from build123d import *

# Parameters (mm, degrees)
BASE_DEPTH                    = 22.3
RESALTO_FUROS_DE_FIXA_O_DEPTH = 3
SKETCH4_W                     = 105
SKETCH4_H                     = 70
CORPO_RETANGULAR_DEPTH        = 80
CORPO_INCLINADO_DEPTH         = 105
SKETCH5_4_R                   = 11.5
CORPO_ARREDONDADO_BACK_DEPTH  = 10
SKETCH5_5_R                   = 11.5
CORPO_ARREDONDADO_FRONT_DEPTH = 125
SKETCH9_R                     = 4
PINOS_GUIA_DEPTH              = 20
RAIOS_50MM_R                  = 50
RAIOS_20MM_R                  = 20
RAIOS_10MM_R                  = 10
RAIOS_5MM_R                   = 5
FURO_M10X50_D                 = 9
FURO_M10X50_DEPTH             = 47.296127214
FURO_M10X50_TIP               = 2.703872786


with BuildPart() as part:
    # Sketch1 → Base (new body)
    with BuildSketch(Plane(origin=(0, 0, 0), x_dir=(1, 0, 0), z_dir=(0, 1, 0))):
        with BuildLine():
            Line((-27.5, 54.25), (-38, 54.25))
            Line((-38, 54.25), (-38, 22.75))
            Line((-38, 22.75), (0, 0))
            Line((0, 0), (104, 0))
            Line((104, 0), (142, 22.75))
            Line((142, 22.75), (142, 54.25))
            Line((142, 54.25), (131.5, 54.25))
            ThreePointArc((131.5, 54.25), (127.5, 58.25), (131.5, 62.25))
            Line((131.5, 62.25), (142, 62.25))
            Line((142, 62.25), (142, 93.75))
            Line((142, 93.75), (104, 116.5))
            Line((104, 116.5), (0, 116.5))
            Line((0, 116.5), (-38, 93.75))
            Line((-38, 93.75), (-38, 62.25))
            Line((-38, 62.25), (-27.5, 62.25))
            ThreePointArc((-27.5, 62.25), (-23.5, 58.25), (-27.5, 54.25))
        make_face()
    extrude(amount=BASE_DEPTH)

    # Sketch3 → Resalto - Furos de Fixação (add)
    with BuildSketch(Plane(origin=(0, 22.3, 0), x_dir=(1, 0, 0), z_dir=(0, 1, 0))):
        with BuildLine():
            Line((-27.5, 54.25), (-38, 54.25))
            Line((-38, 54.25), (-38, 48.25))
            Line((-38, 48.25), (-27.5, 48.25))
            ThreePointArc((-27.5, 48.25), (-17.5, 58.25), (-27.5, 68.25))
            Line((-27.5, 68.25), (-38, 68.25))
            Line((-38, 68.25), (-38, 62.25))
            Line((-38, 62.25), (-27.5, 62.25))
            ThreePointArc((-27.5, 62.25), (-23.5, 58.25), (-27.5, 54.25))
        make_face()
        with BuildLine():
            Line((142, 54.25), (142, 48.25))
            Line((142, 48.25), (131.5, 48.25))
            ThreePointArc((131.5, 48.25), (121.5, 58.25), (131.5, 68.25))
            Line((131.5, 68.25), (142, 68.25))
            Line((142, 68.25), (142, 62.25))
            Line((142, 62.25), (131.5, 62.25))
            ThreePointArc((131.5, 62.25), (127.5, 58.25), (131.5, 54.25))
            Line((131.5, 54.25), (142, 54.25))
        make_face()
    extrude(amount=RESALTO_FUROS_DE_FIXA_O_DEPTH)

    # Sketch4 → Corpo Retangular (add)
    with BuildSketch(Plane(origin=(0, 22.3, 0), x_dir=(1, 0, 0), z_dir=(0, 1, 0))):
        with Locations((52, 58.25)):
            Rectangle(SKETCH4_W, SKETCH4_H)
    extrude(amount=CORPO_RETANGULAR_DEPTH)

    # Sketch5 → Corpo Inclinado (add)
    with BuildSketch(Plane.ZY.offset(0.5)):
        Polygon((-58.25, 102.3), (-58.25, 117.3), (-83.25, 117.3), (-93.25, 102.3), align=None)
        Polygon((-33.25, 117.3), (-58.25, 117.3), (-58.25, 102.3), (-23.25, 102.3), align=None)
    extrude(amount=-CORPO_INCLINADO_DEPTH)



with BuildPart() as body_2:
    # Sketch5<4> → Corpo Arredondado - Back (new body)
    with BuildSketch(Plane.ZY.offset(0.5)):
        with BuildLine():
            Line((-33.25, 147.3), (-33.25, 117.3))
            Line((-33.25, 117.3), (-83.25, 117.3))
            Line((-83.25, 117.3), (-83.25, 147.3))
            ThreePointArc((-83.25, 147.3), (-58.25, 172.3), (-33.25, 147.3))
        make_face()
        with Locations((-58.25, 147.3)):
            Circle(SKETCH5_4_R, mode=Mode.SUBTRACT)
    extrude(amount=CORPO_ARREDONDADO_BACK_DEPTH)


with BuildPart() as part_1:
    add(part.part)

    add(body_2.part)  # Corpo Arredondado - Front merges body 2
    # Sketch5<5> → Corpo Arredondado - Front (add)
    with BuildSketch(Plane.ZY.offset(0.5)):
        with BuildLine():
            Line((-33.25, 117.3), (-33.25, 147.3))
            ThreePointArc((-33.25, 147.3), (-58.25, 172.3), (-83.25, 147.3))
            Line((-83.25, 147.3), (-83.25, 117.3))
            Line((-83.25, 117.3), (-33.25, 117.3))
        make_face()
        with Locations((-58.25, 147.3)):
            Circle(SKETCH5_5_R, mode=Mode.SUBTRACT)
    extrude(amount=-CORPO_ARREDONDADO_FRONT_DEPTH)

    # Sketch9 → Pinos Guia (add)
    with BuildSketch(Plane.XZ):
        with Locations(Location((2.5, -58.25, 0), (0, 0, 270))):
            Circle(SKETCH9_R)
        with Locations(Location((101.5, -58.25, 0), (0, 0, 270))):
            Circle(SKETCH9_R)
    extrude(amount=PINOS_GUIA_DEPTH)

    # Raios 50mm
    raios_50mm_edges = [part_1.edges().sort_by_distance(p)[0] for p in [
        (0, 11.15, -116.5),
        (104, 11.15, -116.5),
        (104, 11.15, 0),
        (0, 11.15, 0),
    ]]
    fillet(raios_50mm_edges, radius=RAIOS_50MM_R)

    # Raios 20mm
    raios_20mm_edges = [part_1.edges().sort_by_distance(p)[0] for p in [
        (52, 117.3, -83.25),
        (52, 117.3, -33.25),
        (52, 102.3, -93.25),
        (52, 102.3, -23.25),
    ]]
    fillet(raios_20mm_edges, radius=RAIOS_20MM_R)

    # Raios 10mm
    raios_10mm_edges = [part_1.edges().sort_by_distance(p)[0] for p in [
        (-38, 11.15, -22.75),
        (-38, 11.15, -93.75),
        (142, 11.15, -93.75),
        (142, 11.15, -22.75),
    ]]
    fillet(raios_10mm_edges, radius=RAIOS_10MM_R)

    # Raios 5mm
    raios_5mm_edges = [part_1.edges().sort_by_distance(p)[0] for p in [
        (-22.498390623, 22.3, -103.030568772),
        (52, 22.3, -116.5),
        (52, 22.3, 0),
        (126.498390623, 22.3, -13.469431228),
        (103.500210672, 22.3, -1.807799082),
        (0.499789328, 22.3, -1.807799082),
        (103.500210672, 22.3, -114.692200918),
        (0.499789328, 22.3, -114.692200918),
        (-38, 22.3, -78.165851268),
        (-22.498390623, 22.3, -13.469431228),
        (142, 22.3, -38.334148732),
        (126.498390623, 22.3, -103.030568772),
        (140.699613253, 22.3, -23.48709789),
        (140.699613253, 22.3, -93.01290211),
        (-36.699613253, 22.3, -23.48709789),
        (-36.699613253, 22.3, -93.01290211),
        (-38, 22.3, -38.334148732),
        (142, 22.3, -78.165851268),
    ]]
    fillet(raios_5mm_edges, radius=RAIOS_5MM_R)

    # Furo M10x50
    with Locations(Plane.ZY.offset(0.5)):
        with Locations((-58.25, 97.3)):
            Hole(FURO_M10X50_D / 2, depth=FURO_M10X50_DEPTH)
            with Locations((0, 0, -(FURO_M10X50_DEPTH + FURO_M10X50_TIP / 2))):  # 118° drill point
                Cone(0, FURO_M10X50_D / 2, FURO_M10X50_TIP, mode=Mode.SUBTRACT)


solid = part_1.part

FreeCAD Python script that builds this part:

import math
import FreeCAD as App
import Part
import Sketcher

V = App.Vector


def edges_at(feature, points):
    """Names of the edges that pass closest to the given points."""
    edges = feature.Shape.Edges
    near = lambda p: min(range(len(edges)), key=lambda i: edges[i].distToShape(Part.Vertex(*p))[0])
    return sorted({f"Edge{near(p) + 1}" for p in points})

doc = App.newDocument("Part")
body = doc.addObject("PartDesign::Body", "Body")

sketch1 = doc.addObject("Sketcher::SketchObject", "Sketch")
body.addObject(sketch1)
sketch1.AttachmentSupport = (doc.XZ_Plane, [""])
sketch1.MapMode = "FlatFace"
sketch1.addGeometry([
    Part.LineSegment(V(-27.5, -54.2, 0), V(-38, -54.2, 0)),
    Part.LineSegment(V(-38, -54.2, 0), V(-38, -22.8, 0)),
    Part.LineSegment(V(-38, -22.8, 0), V(0, 0, 0)),
    Part.LineSegment(V(0, 0, 0), V(104, 0, 0)),
    Part.LineSegment(V(104, 0, 0), V(142, -22.8, 0)),
    Part.LineSegment(V(142, -22.8, 0), V(142, -54.2, 0)),
    Part.LineSegment(V(142, -54.2, 0), V(131.5, -54.2, 0)),
    Part.ArcOfCircle(Part.Circle(V(131.5, -58.2, 0), V(0, 0, 1), 4), math.radians(90), math.radians(270)),
    Part.LineSegment(V(131.5, -62.2, 0), V(142, -62.2, 0)),
    Part.LineSegment(V(142, -62.2, 0), V(142, -93.8, 0)),
    Part.LineSegment(V(142, -93.8, 0), V(104, -116.5, 0)),
    Part.LineSegment(V(104, -116.5, 0), V(0, -116.5, 0)),
    Part.LineSegment(V(0, -116.5, 0), V(-38, -93.8, 0)),
    Part.LineSegment(V(-38, -93.8, 0), V(-38, -62.2, 0)),
    Part.LineSegment(V(-38, -62.2, 0), V(-27.5, -62.2, 0)),
    Part.ArcOfCircle(Part.Circle(V(-27.5, -58.2, 0), V(0, 0, 1), 4), math.radians(-90), math.radians(90)),
], False)
sketch1.addConstraint([
    Sketcher.Constraint("Coincident", 0, 2, 1, 1),
    Sketcher.Constraint("Coincident", 1, 2, 2, 1),
    Sketcher.Constraint("Coincident", 2, 2, 3, 1),
    Sketcher.Constraint("Coincident", 3, 2, 4, 1),
    Sketcher.Constraint("Coincident", 4, 2, 5, 1),
    Sketcher.Constraint("Coincident", 5, 2, 6, 1),
    Sketcher.Constraint("Tangent", 6, 2, 7, 1),
    Sketcher.Constraint("Tangent", 7, 2, 8, 1),
    Sketcher.Constraint("Coincident", 8, 2, 9, 1),
    Sketcher.Constraint("Coincident", 9, 2, 10, 1),
    Sketcher.Constraint("Coincident", 10, 2, 11, 1),
    Sketcher.Constraint("Coincident", 11, 2, 12, 1),
    Sketcher.Constraint("Coincident", 12, 2, 13, 1),
    Sketcher.Constraint("Coincident", 13, 2, 14, 1),
    Sketcher.Constraint("Tangent", 14, 2, 15, 1),
    Sketcher.Constraint("Tangent", 15, 2, 0, 1),
    Sketcher.Constraint("Horizontal", 0),
    Sketcher.Constraint("Vertical", 1),
    Sketcher.Constraint("Horizontal", 3),
    Sketcher.Constraint("Vertical", 5),
    Sketcher.Constraint("Horizontal", 6),
    Sketcher.Constraint("Horizontal", 8),
    Sketcher.Constraint("Vertical", 9),
    Sketcher.Constraint("Horizontal", 11),
    Sketcher.Constraint("Vertical", 13),
    Sketcher.Constraint("Horizontal", 14),
    Sketcher.Constraint("Coincident", 2, 2, -1, 1),
    Sketcher.Constraint("Equal", 7, 15),
    Sketcher.Constraint("PointOnObject", 11, 2, -2),
    Sketcher.Constraint("Parallel", 2, 10),
    Sketcher.Constraint("Parallel", 4, 12),
    Sketcher.Constraint("Horizontal", 7, 3, 15, 3),
    Sketcher.Constraint("Horizontal", 1, 2, 4, 2),
    Sketcher.Constraint("Horizontal", 9, 2, 12, 2),
    Sketcher.Constraint("Vertical", 5, 2, 8, 2),
    Sketcher.Constraint("Vertical", 3, 2, 10, 2),
    Sketcher.Constraint("Vertical", 1, 2, 12, 2),
    Sketcher.Constraint("Equal", 0, 6),
    Sketcher.Constraint("Equal", 5, 9),
    Sketcher.Constraint("Radius", 7, 4.0),
    Sketcher.Constraint("DistanceX", 3, 1, 3, 2, 104.0),
    Sketcher.Constraint("DistanceX", 0, 2, 0, 1, 10.5),
    Sketcher.Constraint("DistanceY", 1, 1, 1, 2, 31.5),
    Sketcher.Constraint("DistanceX", 0, 2, -1, 1, 38.0),
    Sketcher.Constraint("DistanceY", 10, 2, -1, 1, 116.5),
])
pad1 = doc.addObject("PartDesign::Pad", "Pad")
body.addObject(pad1)
pad1.Profile = sketch1
pad1.Length = 22.3
pad1.Reversed = True

sketch2 = doc.addObject("Sketcher::SketchObject", "Sketch001")
body.addObject(sketch2)
sketch2.AttachmentSupport = (doc.XZ_Plane, [""])
sketch2.MapMode = "FlatFace"
sketch2.AttachmentOffset = App.Placement(V(0, 0, -22.3), App.Rotation())
sketch2.addGeometry([
    Part.LineSegment(V(-27.5, -54.2, 0), V(-38, -54.2, 0)),
    Part.LineSegment(V(-38, -54.2, 0), V(-38, -48.2, 0)),
    Part.LineSegment(V(-38, -48.2, 0), V(-27.5, -48.2, 0)),
    Part.ArcOfCircle(Part.Circle(V(-27.5, -58.2, 0), V(0, 0, 1), 10), math.radians(-90), math.radians(90)),
    Part.LineSegment(V(-27.5, -68.2, 0), V(-38, -68.2, 0)),
    Part.LineSegment(V(-38, -68.2, 0), V(-38, -62.2, 0)),
    Part.LineSegment(V(-38, -62.2, 0), V(-27.5, -62.2, 0)),
    Part.ArcOfCircle(Part.Circle(V(-27.5, -58.2, 0), V(0, 0, 1), 4), math.radians(-90), math.radians(90)),
    Part.LineSegment(V(142, -48.2, 0), V(142, -54.2, 0)),
    Part.LineSegment(V(142, -54.2, 0), V(131.5, -54.2, 0)),
    Part.ArcOfCircle(Part.Circle(V(131.5, -58.2, 0), V(0, 0, 1), 4), math.radians(90), math.radians(270)),
    Part.LineSegment(V(131.5, -62.2, 0), V(142, -62.2, 0)),
    Part.LineSegment(V(142, -62.2, 0), V(142, -68.2, 0)),
    Part.LineSegment(V(142, -68.2, 0), V(131.5, -68.2, 0)),
    Part.ArcOfCircle(Part.Circle(V(131.5, -58.2, 0), V(0, 0, 1), 10), math.radians(90), math.radians(270)),
    Part.LineSegment(V(131.5, -48.2, 0), V(142, -48.2, 0)),
], False)
sketch2.addConstraint([
    Sketcher.Constraint("Coincident", 0, 2, 1, 1),
    Sketcher.Constraint("Coincident", 1, 2, 2, 1),
    Sketcher.Constraint("Tangent", 2, 2, 3, 2),
    Sketcher.Constraint("Tangent", 3, 1, 4, 1),
    Sketcher.Constraint("Coincident", 4, 2, 5, 1),
    Sketcher.Constraint("Coincident", 5, 2, 6, 1),
    Sketcher.Constraint("Tangent", 6, 2, 7, 1),
    Sketcher.Constraint("Tangent", 7, 2, 0, 1),
    Sketcher.Constraint("Coincident", 8, 2, 9, 1),
    Sketcher.Constraint("Tangent", 9, 2, 10, 1),
    Sketcher.Constraint("Tangent", 10, 2, 11, 1),
    Sketcher.Constraint("Coincident", 11, 2, 12, 1),
    Sketcher.Constraint("Coincident", 12, 2, 13, 1),
    Sketcher.Constraint("Tangent", 13, 2, 14, 2),
    Sketcher.Constraint("Tangent", 14, 1, 15, 1),
    Sketcher.Constraint("Coincident", 15, 2, 8, 1),
    Sketcher.Constraint("Horizontal", 0),
    Sketcher.Constraint("Vertical", 1),
    Sketcher.Constraint("Horizontal", 2),
    Sketcher.Constraint("Horizontal", 4),
    Sketcher.Constraint("Vertical", 5),
    Sketcher.Constraint("Horizontal", 6),
    Sketcher.Constraint("Vertical", 8),
    Sketcher.Constraint("Horizontal", 9),
    Sketcher.Constraint("Horizontal", 11),
    Sketcher.Constraint("Vertical", 12),
    Sketcher.Constraint("Horizontal", 13),
    Sketcher.Constraint("Horizontal", 15),
    Sketcher.Constraint("Coincident", 7, 3, 3, 3),
    Sketcher.Constraint("Coincident", 14, 3, 10, 3),
    Sketcher.Constraint("Equal", 7, 10),
    Sketcher.Constraint("Equal", 3, 14),
    Sketcher.Constraint("Horizontal", 7, 3, 10, 3),
    Sketcher.Constraint("Vertical", 1, 2, 4, 2),
    Sketcher.Constraint("Vertical", 8, 2, 11, 2),
    Sketcher.Constraint("Equal", 6, 9),
    Sketcher.Constraint("Radius", 3, 10.0),
    Sketcher.Constraint("Radius", 7, 4.0),
    Sketcher.Constraint("DistanceX", 0, 2, 0, 1, 10.5),
    Sketcher.Constraint("DistanceX", 0, 2, -1, 1, 38.0),
    Sketcher.Constraint("DistanceX", -1, 1, 8, 2, 142.0),
    Sketcher.Constraint("DistanceY", 3, 3, -1, 1, 58.25),
])
pad2 = doc.addObject("PartDesign::Pad", "Pad001")
body.addObject(pad2)
pad2.Profile = sketch2
pad2.Length = 3
pad2.Reversed = True

sketch3 = doc.addObject("Sketcher::SketchObject", "Sketch002")
body.addObject(sketch3)
sketch3.AttachmentSupport = (doc.XZ_Plane, [""])
sketch3.MapMode = "FlatFace"
sketch3.AttachmentOffset = App.Placement(V(0, 0, -22.3), App.Rotation())
sketch3.addGeometry([
    Part.LineSegment(V(0, -93, 0), V(0, -23, 0)),
    Part.LineSegment(V(0, -23, 0), V(104, -23, 0)),
    Part.LineSegment(V(104, -23, 0), V(104, -93, 0)),
    Part.LineSegment(V(104, -93, 0), V(0, -93, 0)),
], False)
sketch3.addConstraint([
    Sketcher.Constraint("Coincident", 0, 2, 1, 1),
    Sketcher.Constraint("Coincident", 1, 2, 2, 1),
    Sketcher.Constraint("Coincident", 2, 2, 3, 1),
    Sketcher.Constraint("Coincident", 3, 2, 0, 1),
    Sketcher.Constraint("Vertical", 0),
    Sketcher.Constraint("Horizontal", 1),
    Sketcher.Constraint("Vertical", 2),
    Sketcher.Constraint("Horizontal", 3),
    Sketcher.Constraint("DistanceX", 1, 1, 1, 2, 105.0),
    Sketcher.Constraint("DistanceY", 0, 1, 0, 2, 70.0),
    Sketcher.Constraint("DistanceX", 0, 2, -1, 1, 0.5),
    Sketcher.Constraint("DistanceY", 0, 2, -1, 1, 23.25),
])
pad3 = doc.addObject("PartDesign::Pad", "Pad002")
body.addObject(pad3)
pad3.Profile = sketch3
pad3.Length = 80
pad3.Reversed = True

sketch4 = doc.addObject("Sketcher::SketchObject", "Sketch003")
body.addObject(sketch4)
sketch4.AttachmentSupport = (doc.YZ_Plane, [""])
sketch4.MapMode = "FlatFace"
sketch4.AttachmentOffset = App.Placement(V(0, 0, -0.5), App.Rotation())
sketch4.addGeometry([
    Part.LineSegment(V(117, -83, 0), V(102, -93, 0)),
    Part.LineSegment(V(102, -93, 0), V(102, -23, 0)),
    Part.LineSegment(V(102, -23, 0), V(117, -33, 0)),
    Part.LineSegment(V(117, -33, 0), V(117, -83, 0)),
], False)
sketch4.addConstraint([
    Sketcher.Constraint("Coincident", 0, 2, 1, 1),
    Sketcher.Constraint("Coincident", 1, 2, 2, 1),
    Sketcher.Constraint("Coincident", 2, 2, 3, 1),
    Sketcher.Constraint("Coincident", 3, 2, 0, 1),
    Sketcher.Constraint("Vertical", 1),
    Sketcher.Constraint("Vertical", 3),
    Sketcher.Constraint("Equal", 0, 2),
    Sketcher.Constraint("DistanceY", 1, 1, 1, 2, 70.0),
    Sketcher.Constraint("DistanceY", 3, 2, 3, 1, 50.0),
    Sketcher.Constraint("DistanceX", 1, 2, 2, 2, 15.0),
    Sketcher.Constraint("DistanceX", -1, 1, 0, 2, 102.3),
    Sketcher.Constraint("DistanceY", 0, 2, -1, 1, 93.25),
])
pad4 = doc.addObject("PartDesign::Pad", "Pad003")
body.addObject(pad4)
pad4.Profile = sketch4
pad4.Length = 105
body2 = doc.addObject("PartDesign::Body", "Body001")

sketch5 = doc.addObject("Sketcher::SketchObject", "Sketch004")
body2.addObject(sketch5)
sketch5.AttachmentSupport = (doc.getObject("YZ_Plane001"), [""])
sketch5.MapMode = "FlatFace"
sketch5.AttachmentOffset = App.Placement(V(0, 0, -0.5), App.Rotation())
sketch5.addGeometry([
    Part.LineSegment(V(117, -33, 0), V(147, -33, 0)),
    Part.ArcOfCircle(Part.Circle(V(147, -58, 0), V(0, 0, 1), 25), math.radians(-90), math.radians(90)),
    Part.LineSegment(V(147, -83, 0), V(117, -83, 0)),
    Part.LineSegment(V(117, -83, 0), V(117, -33, 0)),
    Part.Circle(V(147, -58, 0), V(0, 0, 1), 12),
], False)
sketch5.addConstraint([
    Sketcher.Constraint("Tangent", 0, 2, 1, 2),
    Sketcher.Constraint("Tangent", 1, 1, 2, 1),
    Sketcher.Constraint("Coincident", 2, 2, 3, 1),
    Sketcher.Constraint("Coincident", 3, 2, 0, 1),
    Sketcher.Constraint("Horizontal", 0),
    Sketcher.Constraint("Horizontal", 2),
    Sketcher.Constraint("Vertical", 3),
    Sketcher.Constraint("Coincident", 4, 3, 1, 3),
    Sketcher.Constraint("Diameter", 4, 23.0),
    Sketcher.Constraint("Radius", 1, 25.0),
    Sketcher.Constraint("DistanceX", 0, 1, 0, 2, 30.0),
    Sketcher.Constraint("DistanceX", -1, 1, 1, 3, 147.3),
    Sketcher.Constraint("DistanceY", 1, 3, -1, 1, 58.25),
])
pad5 = doc.addObject("PartDesign::Pad", "Pad004")
body2.addObject(pad5)
pad5.Profile = sketch5
pad5.Length = 10
pad5.Reversed = True
body.AllowCompound = True
doc.recompute()

boolean = doc.addObject("PartDesign::Boolean", "Boolean")
body.addObject(boolean)
boolean.Type = "Fuse"
boolean.addObjects([body2])

sketch6 = doc.addObject("Sketcher::SketchObject", "Sketch005")
body.addObject(sketch6)
sketch6.AttachmentSupport = (doc.YZ_Plane, [""])
sketch6.MapMode = "FlatFace"
sketch6.AttachmentOffset = App.Placement(V(0, 0, -0.5), App.Rotation())
sketch6.addGeometry([
    Part.LineSegment(V(117, -33, 0), V(147, -33, 0)),
    Part.ArcOfCircle(Part.Circle(V(147, -58, 0), V(0, 0, 1), 25), math.radians(-90), math.radians(90)),
    Part.LineSegment(V(147, -83, 0), V(117, -83, 0)),
    Part.LineSegment(V(117, -83, 0), V(117, -33, 0)),
    Part.Circle(V(147, -58, 0), V(0, 0, 1), 12),
], False)
sketch6.addConstraint([
    Sketcher.Constraint("Tangent", 0, 2, 1, 2),
    Sketcher.Constraint("Tangent", 1, 1, 2, 1),
    Sketcher.Constraint("Coincident", 2, 2, 3, 1),
    Sketcher.Constraint("Coincident", 3, 2, 0, 1),
    Sketcher.Constraint("Horizontal", 0),
    Sketcher.Constraint("Horizontal", 2),
    Sketcher.Constraint("Vertical", 3),
    Sketcher.Constraint("Coincident", 4, 3, 1, 3),
    Sketcher.Constraint("Diameter", 4, 23.0),
    Sketcher.Constraint("Radius", 1, 25.0),
    Sketcher.Constraint("DistanceX", 0, 1, 0, 2, 30.0),
    Sketcher.Constraint("DistanceX", -1, 1, 1, 3, 147.3),
    Sketcher.Constraint("DistanceY", 1, 3, -1, 1, 58.25),
])
pad6 = doc.addObject("PartDesign::Pad", "Pad005")
body.addObject(pad6)
pad6.Profile = sketch6
pad6.Length = 125

sketch7 = doc.addObject("Sketcher::SketchObject", "Sketch006")
body.addObject(sketch7)
sketch7.AttachmentSupport = (doc.XZ_Plane, [""])
sketch7.MapMode = "FlatFace"
sketch7.addGeometry([
    Part.Circle(V(2.5, -58.2, 0), V(0, 0, 1), 4),
    Part.Circle(V(101.5, -58.2, 0), V(0, 0, 1), 4),
], False)
sketch7.addConstraint([
    Sketcher.Constraint("Equal", 0, 1),
    Sketcher.Constraint("Horizontal", 0, 3, 1, 3),
    Sketcher.Constraint("Diameter", 0, 8.0),
    Sketcher.Constraint("DistanceX", 0, 3, 1, 3, 99.0),
    Sketcher.Constraint("DistanceX", -1, 1, 0, 3, 2.5),
    Sketcher.Constraint("DistanceY", 0, 3, -1, 1, 58.25),
])
pad7 = doc.addObject("PartDesign::Pad", "Pad006")
body.addObject(pad7)
pad7.Profile = sketch7
pad7.Length = 20
doc.recompute()

fillet = doc.addObject("PartDesign::Fillet", "Fillet")
body.addObject(fillet)
fillet.Base = (pad7, edges_at(pad7, [
    (0, 11.15, -116.5),
    (104, 11.15, -116.5),
    (104, 11.15, 0),
    (0, 11.15, 0),
]))
fillet.Radius = 50
doc.recompute()

fillet2 = doc.addObject("PartDesign::Fillet", "Fillet001")
body.addObject(fillet2)
fillet2.Base = (fillet, edges_at(fillet, [
    (52, 117.3, -83.25),
    (52, 117.3, -33.25),
    (52, 102.3, -93.25),
    (52, 102.3, -23.25),
]))
fillet2.Radius = 20
doc.recompute()

fillet3 = doc.addObject("PartDesign::Fillet", "Fillet002")
body.addObject(fillet3)
fillet3.Base = (fillet2, edges_at(fillet2, [
    (-38, 11.15, -22.75),
    (-38, 11.15, -93.75),
    (142, 11.15, -93.75),
    (142, 11.15, -22.75),
]))
fillet3.Radius = 10
doc.recompute()

fillet4 = doc.addObject("PartDesign::Fillet", "Fillet003")
body.addObject(fillet4)
fillet4.Base = (fillet3, edges_at(fillet3, [
    (-22.498, 22.3, -103.031),
    (52, 22.3, -116.5),
    (52, 22.3, 0),
    (126.498, 22.3, -13.469),
    (103.5, 22.3, -1.808),
    (0.5, 22.3, -1.808),
    (103.5, 22.3, -114.692),
    (0.5, 22.3, -114.692),
    (-38, 22.3, -78.166),
    (-22.498, 22.3, -13.469),
    (142, 22.3, -38.334),
    (126.498, 22.3, -103.031),
    (140.7, 22.3, -23.487),
    (140.7, 22.3, -93.013),
    (-36.7, 22.3, -23.487),
    (-36.7, 22.3, -93.013),
    (-38, 22.3, -38.334),
    (142, 22.3, -78.166),
]))
fillet4.Radius = 5

sketch8 = doc.addObject("Sketcher::SketchObject", "Sketch007")
body.addObject(sketch8)
sketch8.AttachmentSupport = (doc.YZ_Plane, [""])
sketch8.MapMode = "FlatFace"
sketch8.AttachmentOffset = App.Placement(V(0, 0, -0.5), App.Rotation())
sketch8.addGeometry(Part.Circle(V(97.3, -58.2, 0), V(0, 0, 1), 4.5), False)
sketch8.addConstraint([
    Sketcher.Constraint("Diameter", 0, 9.0),
    Sketcher.Constraint("DistanceX", -1, 1, 0, 3, 97.3),
    Sketcher.Constraint("DistanceY", 0, 3, -1, 1, 58.25),
])
doc.recompute()
hole = doc.addObject("PartDesign::Hole", "Hole")
body.addObject(hole)
hole.Profile = sketch8
hole.ThreadType = "None"
hole.Diameter = 9
hole.DepthType = "Dimension"
hole.Depth = 47.296127
hole.DrillPoint = "Angled"
hole.DrillPointAngle = 118
hole.Reversed = True

doc.recompute()
